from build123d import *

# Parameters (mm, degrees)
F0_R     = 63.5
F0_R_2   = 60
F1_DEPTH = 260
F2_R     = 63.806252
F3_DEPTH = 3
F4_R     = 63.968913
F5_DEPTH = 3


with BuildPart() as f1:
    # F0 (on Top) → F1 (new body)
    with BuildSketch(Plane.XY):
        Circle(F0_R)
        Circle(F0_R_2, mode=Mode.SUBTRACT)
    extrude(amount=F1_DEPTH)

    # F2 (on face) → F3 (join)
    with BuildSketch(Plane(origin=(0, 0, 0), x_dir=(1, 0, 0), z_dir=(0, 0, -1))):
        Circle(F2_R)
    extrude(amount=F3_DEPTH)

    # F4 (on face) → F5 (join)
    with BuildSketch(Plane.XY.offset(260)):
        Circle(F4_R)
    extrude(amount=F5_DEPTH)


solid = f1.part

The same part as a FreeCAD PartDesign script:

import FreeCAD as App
import Part
import Sketcher
from FreeCAD import Vector

doc = App.newDocument("Part")
body = doc.addObject("PartDesign::Body", "Body")

sketch1 = doc.addObject("Sketcher::SketchObject", "Sketch")
body.addObject(sketch1)
sketch1.AttachmentSupport = (doc.XY_Plane, [""])
sketch1.MapMode = "FlatFace"
sketch1.addGeometry(Part.Circle(Vector(0, 0, 0), Vector(0, 0, 1), 64), False)
sketch1.addGeometry(Part.Circle(Vector(0, 0, 0), Vector(0, 0, 1), 60), False)
sketch1.addConstraint(Sketcher.Constraint("Coincident", 0, 3, -1, 1))
sketch1.addConstraint(Sketcher.Constraint("Coincident", 1, 3, -1, 1))
sketch1.addConstraint(Sketcher.Constraint("Diameter", 0, 127.0))
sketch1.addConstraint(Sketcher.Constraint("Diameter", 1, 120.0))
pad1 = doc.addObject("PartDesign::Pad", "Pad")
body.addObject(pad1)
pad1.Profile = sketch1
pad1.Length = 260

sketch2 = doc.addObject("Sketcher::SketchObject", "Sketch001")
body.addObject(sketch2)
sketch2.AttachmentSupport = (doc.XY_Plane, [""])
sketch2.MapMode = "FlatFace"
sketch2.addGeometry(Part.Circle(Vector(0, 0, 0), Vector(0, 0, 1), 64), False)
sketch2.addConstraint(Sketcher.Constraint("Coincident", 0, 3, -1, 1))
sketch2.addConstraint(Sketcher.Constraint("Diameter", 0, 127.612504))
pad2 = doc.addObject("PartDesign::Pad", "Pad001")
body.addObject(pad2)
pad2.Profile = sketch2
pad2.Length = 3
pad2.Reversed = True

sketch3 = doc.addObject("Sketcher::SketchObject", "Sketch002")
body.addObject(sketch3)
sketch3.AttachmentSupport = (doc.XY_Plane, [""])
sketch3.MapMode = "FlatFace"
sketch3.AttachmentOffset = App.Placement(Vector(0, 0, 260), App.Rotation())
sketch3.addGeometry(Part.Circle(Vector(0, 0, 0), Vector(0, 0, 1), 64), False)
sketch3.addConstraint(Sketcher.Constraint("Coincident", 0, 3, -1, 1))
sketch3.addConstraint(Sketcher.Constraint("Diameter", 0, 127.937826))
pad3 = doc.addObject("PartDesign::Pad", "Pad002")
body.addObject(pad3)
pad3.Profile = sketch3
pad3.Length = 3

doc.recompute()
